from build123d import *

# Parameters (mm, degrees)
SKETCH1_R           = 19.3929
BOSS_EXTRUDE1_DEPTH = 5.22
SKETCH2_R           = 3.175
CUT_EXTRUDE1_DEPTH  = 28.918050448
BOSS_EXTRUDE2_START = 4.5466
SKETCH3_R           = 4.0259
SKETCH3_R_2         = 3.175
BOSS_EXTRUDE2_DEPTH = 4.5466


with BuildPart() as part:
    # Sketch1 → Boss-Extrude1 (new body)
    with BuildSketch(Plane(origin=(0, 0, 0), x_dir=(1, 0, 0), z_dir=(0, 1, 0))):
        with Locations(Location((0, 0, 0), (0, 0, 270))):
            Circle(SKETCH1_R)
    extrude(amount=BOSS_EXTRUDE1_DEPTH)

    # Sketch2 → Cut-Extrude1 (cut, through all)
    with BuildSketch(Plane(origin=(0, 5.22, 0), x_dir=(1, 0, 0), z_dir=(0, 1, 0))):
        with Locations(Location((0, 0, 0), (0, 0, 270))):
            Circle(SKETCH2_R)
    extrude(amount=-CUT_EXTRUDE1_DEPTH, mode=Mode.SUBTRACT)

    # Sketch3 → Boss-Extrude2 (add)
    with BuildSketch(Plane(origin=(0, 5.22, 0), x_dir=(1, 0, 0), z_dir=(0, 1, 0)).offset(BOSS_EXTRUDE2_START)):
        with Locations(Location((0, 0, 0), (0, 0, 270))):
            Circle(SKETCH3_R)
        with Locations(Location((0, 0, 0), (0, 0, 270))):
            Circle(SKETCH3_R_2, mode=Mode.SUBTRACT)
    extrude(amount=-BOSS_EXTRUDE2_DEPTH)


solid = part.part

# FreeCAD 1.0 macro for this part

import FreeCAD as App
import Part
import Sketcher
Q = App.Units.Quantity

doc = App.newDocument("Part")
body = doc.addObject("PartDesign::Body", "Body")

# Sketch on XZ plane
sketch1 = doc.addObject("Sketcher::SketchObject", "Sketch")
body.addObject(sketch1)
sketch1.AttachmentSupport = (doc.XZ_Plane, [""])
sketch1.MapMode = "FlatFace"
sketch1.addGeometry(Part.Circle(App.Vector(0, 0, 0), App.Vector(0, 0, 1), 19.3929), False)
sketch1.addConstraint(Sketcher.Constraint("Coincident", 0, 3, -1, 1))
sketch1.addConstraint(Sketcher.Constraint("Diameter", 0, Q("1.527 in")))
pad1 = doc.addObject("PartDesign::Pad", "Pad")
body.addObject(pad1)
pad1.Profile = sketch1
pad1.Length = 5.22
pad1.Reversed = True

# Sketch on XZ plane
sketch2 = doc.addObject("Sketcher::SketchObject", "Sketch001")
body.addObject(sketch2)
sketch2.AttachmentSupport = (doc.XZ_Plane, [""])
sketch2.MapMode = "FlatFace"
sketch2.AttachmentOffset = App.Placement(App.Vector(0, 0, -5.22), App.Rotation())
sketch2.addGeometry(Part.Circle(App.Vector(0, 0, 0), App.Vector(0, 0, 1), 3.175), False)
sketch2.addConstraint(Sketcher.Constraint("Coincident", 0, 3, -1, 1))
sketch2.addConstraint(Sketcher.Constraint("Diameter", 0, Q("0.25 in")))
pocket1 = doc.addObject("PartDesign::Pocket", "Pocket")
body.addObject(pocket1)
pocket1.Profile = sketch2
pocket1.Type = "ThroughAll"
pocket1.Reversed = True

# Sketch on XZ plane
sketch3 = doc.addObject("Sketcher::SketchObject", "Sketch002")
body.addObject(sketch3)
sketch3.AttachmentSupport = (doc.XZ_Plane, [""])
sketch3.MapMode = "FlatFace"
sketch3.AttachmentOffset = App.Placement(App.Vector(0, 0, -9.7666), App.Rotation())
sketch3.addGeometry(Part.Circle(App.Vector(0, 0, 0), App.Vector(0, 0, 1), 4.0259), False)
sketch3.addGeometry(Part.Circle(App.Vector(0, 0, 0), App.Vector(0, 0, 1), 3.175), False)
sketch3.addConstraint(Sketcher.Constraint("Coincident", 0, 3, -1, 1))
sketch3.addConstraint(Sketcher.Constraint("Coincident", 1, 3, -1, 1))
sketch3.addConstraint(Sketcher.Constraint("Diameter", 1, Q("0.25 in")))
sketch3.addConstraint(Sketcher.Constraint("Diameter", 0, Q("0.317 in")))
pad2 = doc.addObject("PartDesign::Pad", "Pad001")
body.addObject(pad2)
pad2.Profile = sketch3
pad2.Length = Q("0.179 in")

doc.recompute()
